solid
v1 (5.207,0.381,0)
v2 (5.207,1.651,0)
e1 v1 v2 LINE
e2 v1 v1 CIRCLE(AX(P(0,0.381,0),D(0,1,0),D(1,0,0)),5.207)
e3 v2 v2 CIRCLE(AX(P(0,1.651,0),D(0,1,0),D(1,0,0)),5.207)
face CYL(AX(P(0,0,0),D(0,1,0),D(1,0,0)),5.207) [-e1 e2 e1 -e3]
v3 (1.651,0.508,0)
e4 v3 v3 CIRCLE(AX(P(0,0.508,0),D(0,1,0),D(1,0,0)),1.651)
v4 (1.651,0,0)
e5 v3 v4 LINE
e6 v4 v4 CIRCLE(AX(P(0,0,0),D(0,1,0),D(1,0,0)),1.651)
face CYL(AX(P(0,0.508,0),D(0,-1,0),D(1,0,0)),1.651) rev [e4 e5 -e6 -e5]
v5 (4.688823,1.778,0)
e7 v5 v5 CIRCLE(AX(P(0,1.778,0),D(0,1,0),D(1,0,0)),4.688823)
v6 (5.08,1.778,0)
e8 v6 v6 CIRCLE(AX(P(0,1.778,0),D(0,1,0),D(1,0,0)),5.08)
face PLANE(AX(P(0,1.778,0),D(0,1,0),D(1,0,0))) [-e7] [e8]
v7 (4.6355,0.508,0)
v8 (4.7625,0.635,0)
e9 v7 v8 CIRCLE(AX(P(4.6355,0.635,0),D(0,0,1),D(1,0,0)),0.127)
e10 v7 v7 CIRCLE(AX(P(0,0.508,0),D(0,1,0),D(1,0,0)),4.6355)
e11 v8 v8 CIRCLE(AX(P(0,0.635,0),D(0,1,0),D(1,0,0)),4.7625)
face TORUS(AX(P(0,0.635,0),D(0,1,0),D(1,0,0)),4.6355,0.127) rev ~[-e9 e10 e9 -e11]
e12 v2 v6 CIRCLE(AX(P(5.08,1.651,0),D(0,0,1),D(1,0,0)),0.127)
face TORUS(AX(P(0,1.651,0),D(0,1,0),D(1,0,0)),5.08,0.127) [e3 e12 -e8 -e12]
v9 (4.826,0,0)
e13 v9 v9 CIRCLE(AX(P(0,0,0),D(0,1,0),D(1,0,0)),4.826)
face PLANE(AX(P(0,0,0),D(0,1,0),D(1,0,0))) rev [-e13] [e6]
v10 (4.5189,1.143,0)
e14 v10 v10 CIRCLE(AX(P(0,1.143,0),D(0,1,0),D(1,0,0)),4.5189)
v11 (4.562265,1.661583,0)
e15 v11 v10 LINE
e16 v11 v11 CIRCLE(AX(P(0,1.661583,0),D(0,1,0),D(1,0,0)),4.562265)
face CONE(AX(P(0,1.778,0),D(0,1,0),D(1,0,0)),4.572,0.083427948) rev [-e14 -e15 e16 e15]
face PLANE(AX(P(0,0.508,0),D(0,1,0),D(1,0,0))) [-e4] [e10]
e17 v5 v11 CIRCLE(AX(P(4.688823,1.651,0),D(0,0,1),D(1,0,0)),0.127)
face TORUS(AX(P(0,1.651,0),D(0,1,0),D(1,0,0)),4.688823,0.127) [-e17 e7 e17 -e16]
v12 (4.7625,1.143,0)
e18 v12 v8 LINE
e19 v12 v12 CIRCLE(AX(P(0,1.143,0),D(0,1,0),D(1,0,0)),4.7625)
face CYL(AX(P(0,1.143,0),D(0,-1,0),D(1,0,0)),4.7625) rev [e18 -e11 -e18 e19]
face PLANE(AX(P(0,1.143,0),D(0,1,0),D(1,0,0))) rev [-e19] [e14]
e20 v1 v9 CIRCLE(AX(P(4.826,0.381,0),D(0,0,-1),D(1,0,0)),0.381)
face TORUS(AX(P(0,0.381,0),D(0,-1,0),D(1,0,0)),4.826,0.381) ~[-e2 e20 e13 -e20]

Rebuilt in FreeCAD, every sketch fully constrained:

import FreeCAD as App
import Part
import Sketcher

V = App.Vector
Q = App.Units.Quantity


def edges_at(feature, points):
    """Names of the edges that pass closest to the given points."""
    edges = feature.Shape.Edges
    near = lambda p: min(range(len(edges)), key=lambda i: edges[i].distToShape(Part.Vertex(*p))[0])
    return sorted({f"Edge{near(p) + 1}" for p in points})


def add_polygon(sketch, points):
    """Adds a closed chain of lines whose ends are joined by coincident constraints."""
    first, n = sketch.GeometryCount, len(points)
    for a, b in zip(points, points[1:] + points[:1]):
        sketch.addGeometry(Part.LineSegment(App.Vector(*a, 0), App.Vector(*b, 0)), False)
    for i in range(n):
        sketch.addConstraint(Sketcher.Constraint("Coincident", first + i, 2, first + (i + 1) % n, 1))

doc = App.newDocument("Part")
params = doc.addObject("Spreadsheet::Sheet", "Params")
for row, (alias, value) in enumerate([
    ("sketch1_height", "0.02 in"),
    ("sketch1_height2", "0.07 in"),
    ("sketch1_width", "0.025 in"),
    ("sketch1_width2", "0.14 in"),
    ("revolution_angle", "360 deg"),
    ("fillet_radius", "0.015 in"),
    ("fillet2_radius", "0.005 in"),
], start=1):
    params.set(f"A{row}", alias)
    params.set(f"B{row}", "=" + value)
    params.setAlias(f"B{row}", alias)

body = doc.addObject("PartDesign::Body", "Body")

sketch1 = doc.addObject("Sketcher::SketchObject", "Sketch")
body.addObject(sketch1)
sketch1.AttachmentSupport = (doc.XY_Plane, [""])
sketch1.MapMode = "FlatFace"
add_polygon(sketch1, [(1.651, 0.508), (1.651, 0), (5.207, 0), (5.207, 1.778), (4.572, 1.778), (4.5189, 1.143), (4.7625, 1.143), (4.7625, 0.508)])
sketch1.addConstraint([
    Sketcher.Constraint("Vertical", 0),
    Sketcher.Constraint("Horizontal", 1),
    Sketcher.Constraint("Vertical", 2),
    Sketcher.Constraint("Horizontal", 3),
    Sketcher.Constraint("Horizontal", 5),
    Sketcher.Constraint("Vertical", 6),
    Sketcher.Constraint("Horizontal", 7),
    Sketcher.Constraint("PointOnObject", 0, 2, -1),
    Sketcher.Constraint("Equal", 3, 6),
    Sketcher.Constraint("DistanceY", 0, 2, 0, 1, Q("0.02 in")),
    Sketcher.Constraint("DistanceY", 2, 1, 2, 2, Q("0.07 in")),
    Sketcher.Constraint("DistanceX", 3, 2, 3, 1, Q("0.025 in")),
    Sketcher.Constraint("DistanceX", 1, 1, 1, 2, Q("0.14 in")),
    Sketcher.Constraint("DistanceX", -1, 1, 3, 2, Q("0.18 in")),
    Sketcher.Constraint("Angle", 4, Q("-94.78 deg")),
    Sketcher.Constraint("DistanceX", 5, 1, 5, 2, Q("0.0096 in")),
])
sketch1.setExpression("Constraints[17]", "Params.sketch1_height")
sketch1.setExpression("Constraints[18]", "Params.sketch1_height2")
sketch1.setExpression("Constraints[19]", "Params.sketch1_width")
sketch1.setExpression("Constraints[20]", "Params.sketch1_width2")
revolution = doc.addObject("PartDesign::Revolution", "Revolution")
body.addObject(revolution)
revolution.Profile = sketch1
revolution.ReferenceAxis = (sketch1, ["V_Axis"])
revolution.setExpression("Angle", "Params.revolution_angle")
doc.recompute()

fillet = doc.addObject("PartDesign::Fillet", "Fillet")
body.addObject(fillet)
fillet.Base = (revolution, edges_at(revolution, [(-5.207, 0, 0)]))
fillet.setExpression("Radius", "Params.fillet_radius")
doc.recompute()

fillet2 = doc.addObject("PartDesign::Fillet", "Fillet001")
body.addObject(fillet2)
fillet2.Base = (fillet, edges_at(fillet, [(-5.207, 1.778, 0), (-4.572, 1.778, 0), (-4.763, 0.508, 0)]))
fillet2.setExpression("Radius", "Params.fillet2_radius")

doc.recompute()
